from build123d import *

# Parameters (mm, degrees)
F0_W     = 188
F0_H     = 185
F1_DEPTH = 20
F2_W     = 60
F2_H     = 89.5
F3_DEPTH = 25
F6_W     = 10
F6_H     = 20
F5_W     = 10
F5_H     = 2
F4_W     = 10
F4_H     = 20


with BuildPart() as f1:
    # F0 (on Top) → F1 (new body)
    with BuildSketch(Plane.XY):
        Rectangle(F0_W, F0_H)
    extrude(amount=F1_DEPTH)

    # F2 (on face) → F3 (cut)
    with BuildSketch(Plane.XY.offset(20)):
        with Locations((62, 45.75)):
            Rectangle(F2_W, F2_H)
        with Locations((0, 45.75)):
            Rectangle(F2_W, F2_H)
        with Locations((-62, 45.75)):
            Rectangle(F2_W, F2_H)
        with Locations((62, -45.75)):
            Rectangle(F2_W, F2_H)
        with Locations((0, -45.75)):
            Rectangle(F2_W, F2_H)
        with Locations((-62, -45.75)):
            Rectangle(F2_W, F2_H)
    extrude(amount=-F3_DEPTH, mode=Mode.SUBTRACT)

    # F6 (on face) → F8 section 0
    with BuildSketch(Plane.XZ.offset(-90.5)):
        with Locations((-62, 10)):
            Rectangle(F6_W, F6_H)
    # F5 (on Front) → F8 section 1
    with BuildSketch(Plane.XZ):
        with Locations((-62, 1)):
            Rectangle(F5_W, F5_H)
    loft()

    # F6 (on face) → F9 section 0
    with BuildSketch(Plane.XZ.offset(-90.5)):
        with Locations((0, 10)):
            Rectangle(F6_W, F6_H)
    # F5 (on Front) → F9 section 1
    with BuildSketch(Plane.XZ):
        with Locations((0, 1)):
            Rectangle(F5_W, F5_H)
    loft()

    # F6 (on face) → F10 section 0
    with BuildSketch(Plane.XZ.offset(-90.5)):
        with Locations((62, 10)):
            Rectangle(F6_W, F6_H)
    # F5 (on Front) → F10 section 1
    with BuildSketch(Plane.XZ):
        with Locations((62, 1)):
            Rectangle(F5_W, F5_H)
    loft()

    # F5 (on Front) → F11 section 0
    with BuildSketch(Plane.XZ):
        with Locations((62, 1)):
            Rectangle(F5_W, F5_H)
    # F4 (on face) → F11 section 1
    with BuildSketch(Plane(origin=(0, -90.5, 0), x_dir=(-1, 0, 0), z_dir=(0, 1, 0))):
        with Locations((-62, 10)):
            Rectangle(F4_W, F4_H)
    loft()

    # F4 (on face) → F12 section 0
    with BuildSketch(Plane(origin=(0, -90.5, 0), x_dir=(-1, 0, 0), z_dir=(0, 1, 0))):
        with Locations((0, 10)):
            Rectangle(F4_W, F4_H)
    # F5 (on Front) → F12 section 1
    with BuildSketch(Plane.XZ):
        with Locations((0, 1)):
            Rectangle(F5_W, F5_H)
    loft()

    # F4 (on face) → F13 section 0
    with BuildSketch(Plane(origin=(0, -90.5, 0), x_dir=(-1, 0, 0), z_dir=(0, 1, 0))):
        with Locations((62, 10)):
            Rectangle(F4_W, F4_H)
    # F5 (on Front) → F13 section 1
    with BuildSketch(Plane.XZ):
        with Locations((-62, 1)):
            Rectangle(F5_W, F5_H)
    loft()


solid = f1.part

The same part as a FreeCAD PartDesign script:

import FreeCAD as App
import Part
import Sketcher


def add_polygon(sketch, points):
    """Adds a closed chain of lines whose ends are joined by coincident constraints."""
    first, n = sketch.GeometryCount, len(points)
    for a, b in zip(points, points[1:] + points[:1]):
        sketch.addGeometry(Part.LineSegment(App.Vector(*a, 0), App.Vector(*b, 0)), False)
    for i in range(n):
        sketch.addConstraint(Sketcher.Constraint("Coincident", first + i, 2, first + (i + 1) % n, 1))

doc = App.newDocument("Part")
body = doc.addObject("PartDesign::Body", "Body")

# Sketch on XY plane
sketch1 = body.newObject("Sketcher::SketchObject", "Sketch")
sketch1.AttachmentSupport = (doc.getObject("XY_Plane"), [""])
sketch1.MapMode = "FlatFace"
add_polygon(sketch1, [(-94, 92.5), (-94, -92.5), (94, -92.5), (94, 92.5)])  # lines 0-3
sketch1.addConstraint(Sketcher.Constraint("Vertical", 0))
sketch1.addConstraint(Sketcher.Constraint("Horizontal", 1))
sketch1.addConstraint(Sketcher.Constraint("Vertical", 2))
sketch1.addConstraint(Sketcher.Constraint("Horizontal", 3))
sketch1.addConstraint(Sketcher.Constraint("Symmetric", 0, 2, 2, 2, -1, 1))
sketch1.addConstraint(Sketcher.Constraint("DistanceX", 1, 1, 1, 2, 188.0))
sketch1.addConstraint(Sketcher.Constraint("DistanceY", 0, 2, 0, 1, 185.0))
pad1 = body.newObject("PartDesign::Pad", "Pad")
pad1.Profile = sketch1
pad1.Length = 20

# Sketch on XY plane
sketch2 = body.newObject("Sketcher::SketchObject", "Sketch001")
sketch2.AttachmentSupport = (doc.getObject("XY_Plane"), [""])
sketch2.MapMode = "FlatFace"
sketch2.AttachmentOffset = App.Placement(App.Vector(0, 0, 20), App.Rotation())
add_polygon(sketch2, [(32, 90.5), (32, 1), (92, 1), (92, 90.5)])  # lines 0-3
add_polygon(sketch2, [(-30, 90.5), (-30, 1), (30, 1), (30, 90.5)])  # lines 4-7
add_polygon(sketch2, [(-92, 90.5), (-92, 1), (-32, 1), (-32, 90.5)])  # lines 8-11
add_polygon(sketch2, [(32, -1), (32, -90.5), (92, -90.5), (92, -1)])  # lines 12-15
add_polygon(sketch2, [(-30, -1), (-30, -90.5), (30, -90.5), (30, -1)])  # lines 16-19
add_polygon(sketch2, [(-92, -1), (-92, -90.5), (-32, -90.5), (-32, -1)])  # lines 20-23
sketch2.addConstraint(Sketcher.Constraint("Vertical", 0))
sketch2.addConstraint(Sketcher.Constraint("Horizontal", 1))
sketch2.addConstraint(Sketcher.Constraint("Vertical", 2))
sketch2.addConstraint(Sketcher.Constraint("Horizontal", 3))
sketch2.addConstraint(Sketcher.Constraint("Vertical", 4))
sketch2.addConstraint(Sketcher.Constraint("Horizontal", 5))
sketch2.addConstraint(Sketcher.Constraint("Vertical", 6))
sketch2.addConstraint(Sketcher.Constraint("Horizontal", 7))
sketch2.addConstraint(Sketcher.Constraint("Vertical", 8))
sketch2.addConstraint(Sketcher.Constraint("Horizontal", 9))
sketch2.addConstraint(Sketcher.Constraint("Vertical", 10))
sketch2.addConstraint(Sketcher.Constraint("Horizontal", 11))
sketch2.addConstraint(Sketcher.Constraint("Vertical", 12))
sketch2.addConstraint(Sketcher.Constraint("Horizontal", 13))
sketch2.addConstraint(Sketcher.Constraint("Vertical", 14))
sketch2.addConstraint(Sketcher.Constraint("Horizontal", 15))
sketch2.addConstraint(Sketcher.Constraint("Vertical", 16))
sketch2.addConstraint(Sketcher.Constraint("Horizontal", 17))
sketch2.addConstraint(Sketcher.Constraint("Vertical", 18))
sketch2.addConstraint(Sketcher.Constraint("Horizontal", 19))
sketch2.addConstraint(Sketcher.Constraint("Vertical", 20))
sketch2.addConstraint(Sketcher.Constraint("Horizontal", 21))
sketch2.addConstraint(Sketcher.Constraint("Vertical", 22))
sketch2.addConstraint(Sketcher.Constraint("Horizontal", 23))
sketch2.addConstraint(Sketcher.Constraint("Symmetric", 10, 2, 12, 2, -1, 1))
sketch2.addConstraint(Sketcher.Constraint("Symmetric", 8, 2, 14, 2, -1, 1))
sketch2.addConstraint(Sketcher.Constraint("Symmetric", 6, 2, 16, 2, -1, 1))
sketch2.addConstraint(Sketcher.Constraint("Symmetric", 4, 2, 18, 2, -1, 1))
sketch2.addConstraint(Sketcher.Constraint("Symmetric", 2, 2, 20, 2, -1, 1))
sketch2.addConstraint(Sketcher.Constraint("Symmetric", 0, 2, 22, 2, -1, 1))
sketch2.addConstraint(Sketcher.Constraint("Symmetric", 1, 2, 8, 2, -2))
sketch2.addConstraint(Sketcher.Constraint("Symmetric", 3, 2, 10, 2, -2))
sketch2.addConstraint(Sketcher.Constraint("Horizontal", 1, 2, 4, 2))
sketch2.addConstraint(Sketcher.Constraint("Horizontal", 3, 2, 6, 2))
sketch2.addConstraint(Sketcher.Constraint("Vertical", 7, 2, 16, 2))
sketch2.addConstraint(Sketcher.Constraint("Equal", 3, 5))
sketch2.addConstraint(Sketcher.Constraint("DistanceX", 1, 1, 1, 2, 60.0))
sketch2.addConstraint(Sketcher.Constraint("DistanceY", 0, 2, 0, 1, 89.5))
sketch2.addConstraint(Sketcher.Constraint("DistanceX", -1, 1, 0, 2, 32.0))
sketch2.addConstraint(Sketcher.Constraint("DistanceY", -1, 1, 0, 2, 1.0))
pocket1 = body.newObject("PartDesign::Pocket", "Pocket")
pocket1.Profile = sketch2
pocket1.Length = 25

# Sketch on XZ plane
sketch3 = body.newObject("Sketcher::SketchObject", "Sketch002")
sketch3.AttachmentSupport = (doc.getObject("XZ_Plane"), [""])
sketch3.MapMode = "FlatFace"
sketch3.AttachmentOffset = App.Placement(App.Vector(0, 0, -90.5), App.Rotation())
add_polygon(sketch3, [(-67, 20), (-67, 0), (-57, 0), (-57, 20)])  # lines 0-3
sketch3.addConstraint(Sketcher.Constraint("Vertical", 0))
sketch3.addConstraint(Sketcher.Constraint("Horizontal", 1))
sketch3.addConstraint(Sketcher.Constraint("Vertical", 2))
sketch3.addConstraint(Sketcher.Constraint("Horizontal", 3))
sketch3.addConstraint(Sketcher.Constraint("PointOnObject", 0, 2, -1))
sketch3.addConstraint(Sketcher.Constraint("DistanceX", 1, 1, 1, 2, 10.0))
sketch3.addConstraint(Sketcher.Constraint("DistanceY", 0, 2, 0, 1, 20.0))
sketch3.addConstraint(Sketcher.Constraint("DistanceX", 0, 2, -1, 1, 67.0))

# Sketch on XZ plane
sketch4 = body.newObject("Sketcher::SketchObject", "Sketch003")
sketch4.AttachmentSupport = (doc.getObject("XZ_Plane"), [""])
sketch4.MapMode = "FlatFace"
add_polygon(sketch4, [(-67, 2), (-67, 0), (-57, 0), (-57, 2)])  # lines 0-3
sketch4.addConstraint(Sketcher.Constraint("Vertical", 0))
sketch4.addConstraint(Sketcher.Constraint("Horizontal", 1))
sketch4.addConstraint(Sketcher.Constraint("Vertical", 2))
sketch4.addConstraint(Sketcher.Constraint("Horizontal", 3))
sketch4.addConstraint(Sketcher.Constraint("PointOnObject", 0, 2, -1))
sketch4.addConstraint(Sketcher.Constraint("DistanceX", 1, 1, 1, 2, 10.0))
sketch4.addConstraint(Sketcher.Constraint("DistanceY", 0, 2, 0, 1, 2.0))
sketch4.addConstraint(Sketcher.Constraint("DistanceX", 0, 2, -1, 1, 67.0))

additiveloft = body.newObject("PartDesign::AdditiveLoft", "AdditiveLoft")
additiveloft.Profile = sketch3
additiveloft.Sections = [sketch4]

# Sketch on XZ plane
sketch5 = body.newObject("Sketcher::SketchObject", "Sketch004")
sketch5.AttachmentSupport = (doc.getObject("XZ_Plane"), [""])
sketch5.MapMode = "FlatFace"
sketch5.AttachmentOffset = App.Placement(App.Vector(0, 0, -90.5), App.Rotation())
add_polygon(sketch5, [(-5, 20), (-5, 0), (5, 0), (5, 20)])  # lines 0-3
sketch5.addConstraint(Sketcher.Constraint("Vertical", 0))
sketch5.addConstraint(Sketcher.Constraint("Horizontal", 1))
sketch5.addConstraint(Sketcher.Constraint("Vertical", 2))
sketch5.addConstraint(Sketcher.Constraint("Horizontal", 3))
sketch5.addConstraint(Sketcher.Constraint("Symmetric", 0, 2, 1, 2, -1, 1))
sketch5.addConstraint(Sketcher.Constraint("DistanceX", 1, 1, 1, 2, 10.0))
sketch5.addConstraint(Sketcher.Constraint("DistanceY", 0, 2, 0, 1, 20.0))

# Sketch on XZ plane
sketch6 = body.newObject("Sketcher::SketchObject", "Sketch005")
sketch6.AttachmentSupport = (doc.getObject("XZ_Plane"), [""])
sketch6.MapMode = "FlatFace"
add_polygon(sketch6, [(-5, 2), (-5, 0), (5, 0), (5, 2)])  # lines 0-3
sketch6.addConstraint(Sketcher.Constraint("Vertical", 0))
sketch6.addConstraint(Sketcher.Constraint("Horizontal", 1))
sketch6.addConstraint(Sketcher.Constraint("Vertical", 2))
sketch6.addConstraint(Sketcher.Constraint("Horizontal", 3))
sketch6.addConstraint(Sketcher.Constraint("Symmetric", 0, 2, 1, 2, -1, 1))
sketch6.addConstraint(Sketcher.Constraint("DistanceX", 1, 1, 1, 2, 10.0))
sketch6.addConstraint(Sketcher.Constraint("DistanceY", 0, 2, 0, 1, 2.0))

additiveloft2 = body.newObject("PartDesign::AdditiveLoft", "AdditiveLoft001")
additiveloft2.Profile = sketch5
additiveloft2.Sections = [sketch6]

# Sketch on XZ plane
sketch7 = body.newObject("Sketcher::SketchObject", "Sketch006")
sketch7.AttachmentSupport = (doc.getObject("XZ_Plane"), [""])
sketch7.MapMode = "FlatFace"
sketch7.AttachmentOffset = App.Placement(App.Vector(0, 0, -90.5), App.Rotation())
add_polygon(sketch7, [(57, 20), (57, 0), (67, 0), (67, 20)])  # lines 0-3
sketch7.addConstraint(Sketcher.Constraint("Vertical", 0))
sketch7.addConstraint(Sketcher.Constraint("Horizontal", 1))
sketch7.addConstraint(Sketcher.Constraint("Vertical", 2))
sketch7.addConstraint(Sketcher.Constraint("Horizontal", 3))
sketch7.addConstraint(Sketcher.Constraint("PointOnObject", 0, 2, -1))
sketch7.addConstraint(Sketcher.Constraint("DistanceX", 1, 1, 1, 2, 10.0))
sketch7.addConstraint(Sketcher.Constraint("DistanceY", 0, 2, 0, 1, 20.0))
sketch7.addConstraint(Sketcher.Constraint("DistanceX", -1, 1, 0, 2, 57.0))

# Sketch on XZ plane
sketch8 = body.newObject("Sketcher::SketchObject", "Sketch007")
sketch8.AttachmentSupport = (doc.getObject("XZ_Plane"), [""])
sketch8.MapMode = "FlatFace"
add_polygon(sketch8, [(57, 2), (57, 0), (67, 0), (67, 2)])  # lines 0-3
sketch8.addConstraint(Sketcher.Constraint("Vertical", 0))
sketch8.addConstraint(Sketcher.Constraint("Horizontal", 1))
sketch8.addConstraint(Sketcher.Constraint("Vertical", 2))
sketch8.addConstraint(Sketcher.Constraint("Horizontal", 3))
sketch8.addConstraint(Sketcher.Constraint("PointOnObject", 0, 2, -1))
sketch8.addConstraint(Sketcher.Constraint("DistanceX", 1, 1, 1, 2, 10.0))
sketch8.addConstraint(Sketcher.Constraint("DistanceY", 0, 2, 0, 1, 2.0))
sketch8.addConstraint(Sketcher.Constraint("DistanceX", -1, 1, 0, 2, 57.0))

additiveloft3 = body.newObject("PartDesign::AdditiveLoft", "AdditiveLoft002")
additiveloft3.Profile = sketch7
additiveloft3.Sections = [sketch8]

# Sketch on XZ plane
sketch9 = body.newObject("Sketcher::SketchObject", "Sketch008")
sketch9.AttachmentSupport = (doc.getObject("XZ_Plane"), [""])
sketch9.MapMode = "FlatFace"
add_polygon(sketch9, [(57, 2), (57, 0), (67, 0), (67, 2)])  # lines 0-3
sketch9.addConstraint(Sketcher.Constraint("Vertical", 0))
sketch9.addConstraint(Sketcher.Constraint("Horizontal", 1))
sketch9.addConstraint(Sketcher.Constraint("Vertical", 2))
sketch9.addConstraint(Sketcher.Constraint("Horizontal", 3))
sketch9.addConstraint(Sketcher.Constraint("PointOnObject", 0, 2, -1))
sketch9.addConstraint(Sketcher.Constraint("DistanceX", 1, 1, 1, 2, 10.0))
sketch9.addConstraint(Sketcher.Constraint("DistanceY", 0, 2, 0, 1, 2.0))
sketch9.addConstraint(Sketcher.Constraint("DistanceX", -1, 1, 0, 2, 57.0))

# Sketch on XZ plane
sketch10 = body.newObject("Sketcher::SketchObject", "Sketch009")
sketch10.AttachmentSupport = (doc.getObject("XZ_Plane"), [""])
sketch10.MapMode = "FlatFace"
sketch10.AttachmentOffset = App.Placement(App.Vector(0, 0, 90.5), App.Rotation())
add_polygon(sketch10, [(67, 20), (67, 0), (57, 0), (57, 20)])  # lines 0-3
sketch10.addConstraint(Sketcher.Constraint("Vertical", 0))
sketch10.addConstraint(Sketcher.Constraint("Horizontal", 1))
sketch10.addConstraint(Sketcher.Constraint("Vertical", 2))
sketch10.addConstraint(Sketcher.Constraint("Horizontal", 3))
sketch10.addConstraint(Sketcher.Constraint("PointOnObject", 0, 2, -1))
sketch10.addConstraint(Sketcher.Constraint("DistanceX", 1, 2, 1, 1, 10.0))
sketch10.addConstraint(Sketcher.Constraint("DistanceY", 0, 2, 0, 1, 20.0))
sketch10.addConstraint(Sketcher.Constraint("DistanceX", -1, 1, 0, 2, 67.0))

additiveloft4 = body.newObject("PartDesign::AdditiveLoft", "AdditiveLoft003")
additiveloft4.Profile = sketch9
additiveloft4.Sections = [sketch10]

# Sketch on XZ plane
sketch11 = body.newObject("Sketcher::SketchObject", "Sketch010")
sketch11.AttachmentSupport = (doc.getObject("XZ_Plane"), [""])
sketch11.MapMode = "FlatFace"
sketch11.AttachmentOffset = App.Placement(App.Vector(0, 0, 90.5), App.Rotation())
add_polygon(sketch11, [(5, 20), (5, 0), (-5, 0), (-5, 20)])  # lines 0-3
sketch11.addConstraint(Sketcher.Constraint("Vertical", 0))
sketch11.addConstraint(Sketcher.Constraint("Horizontal", 1))
sketch11.addConstraint(Sketcher.Constraint("Vertical", 2))
sketch11.addConstraint(Sketcher.Constraint("Horizontal", 3))
sketch11.addConstraint(Sketcher.Constraint("Symmetric", 0, 2, 1, 2, -1, 1))
sketch11.addConstraint(Sketcher.Constraint("DistanceX", 1, 2, 1, 1, 10.0))
sketch11.addConstraint(Sketcher.Constraint("DistanceY", 0, 2, 0, 1, 20.0))

# Sketch on XZ plane
sketch12 = body.newObject("Sketcher::SketchObject", "Sketch011")
sketch12.AttachmentSupport = (doc.getObject("XZ_Plane"), [""])
sketch12.MapMode = "FlatFace"
add_polygon(sketch12, [(-5, 2), (-5, 0), (5, 0), (5, 2)])  # lines 0-3
sketch12.addConstraint(Sketcher.Constraint("Vertical", 0))
sketch12.addConstraint(Sketcher.Constraint("Horizontal", 1))
sketch12.addConstraint(Sketcher.Constraint("Vertical", 2))
sketch12.addConstraint(Sketcher.Constraint("Horizontal", 3))
sketch12.addConstraint(Sketcher.Constraint("Symmetric", 0, 2, 1, 2, -1, 1))
sketch12.addConstraint(Sketcher.Constraint("DistanceX", 1, 1, 1, 2, 10.0))
sketch12.addConstraint(Sketcher.Constraint("DistanceY", 0, 2, 0, 1, 2.0))

additiveloft5 = body.newObject("PartDesign::AdditiveLoft", "AdditiveLoft004")
additiveloft5.Profile = sketch11
additiveloft5.Sections = [sketch12]

# Sketch on XZ plane
sketch13 = body.newObject("Sketcher::SketchObject", "Sketch012")
sketch13.AttachmentSupport = (doc.getObject("XZ_Plane"), [""])
sketch13.MapMode = "FlatFace"
sketch13.AttachmentOffset = App.Placement(App.Vector(0, 0, 90.5), App.Rotation())
add_polygon(sketch13, [(-57, 20), (-57, 0), (-67, 0), (-67, 20)])  # lines 0-3
sketch13.addConstraint(Sketcher.Constraint("Vertical", 0))
sketch13.addConstraint(Sketcher.Constraint("Horizontal", 1))
sketch13.addConstraint(Sketcher.Constraint("Vertical", 2))
sketch13.addConstraint(Sketcher.Constraint("Horizontal", 3))
sketch13.addConstraint(Sketcher.Constraint("PointOnObject", 0, 2, -1))
sketch13.addConstraint(Sketcher.Constraint("DistanceX", 1, 2, 1, 1, 10.0))
sketch13.addConstraint(Sketcher.Constraint("DistanceY", 0, 2, 0, 1, 20.0))
sketch13.addConstraint(Sketcher.Constraint("DistanceX", 0, 2, -1, 1, 57.0))

# Sketch on XZ plane
sketch14 = body.newObject("Sketcher::SketchObject", "Sketch013")
sketch14.AttachmentSupport = (doc.getObject("XZ_Plane"), [""])
sketch14.MapMode = "FlatFace"
add_polygon(sketch14, [(-67, 2), (-67, 0), (-57, 0), (-57, 2)])  # lines 0-3
sketch14.addConstraint(Sketcher.Constraint("Vertical", 0))
sketch14.addConstraint(Sketcher.Constraint("Horizontal", 1))
sketch14.addConstraint(Sketcher.Constraint("Vertical", 2))
sketch14.addConstraint(Sketcher.Constraint("Horizontal", 3))
sketch14.addConstraint(Sketcher.Constraint("PointOnObject", 0, 2, -1))
sketch14.addConstraint(Sketcher.Constraint("DistanceX", 1, 1, 1, 2, 10.0))
sketch14.addConstraint(Sketcher.Constraint("DistanceY", 0, 2, 0, 1, 2.0))
sketch14.addConstraint(Sketcher.Constraint("DistanceX", 0, 2, -1, 1, 67.0))

additiveloft6 = body.newObject("PartDesign::AdditiveLoft", "AdditiveLoft005")
additiveloft6.Profile = sketch13
additiveloft6.Sections = [sketch14]

doc.recompute()
